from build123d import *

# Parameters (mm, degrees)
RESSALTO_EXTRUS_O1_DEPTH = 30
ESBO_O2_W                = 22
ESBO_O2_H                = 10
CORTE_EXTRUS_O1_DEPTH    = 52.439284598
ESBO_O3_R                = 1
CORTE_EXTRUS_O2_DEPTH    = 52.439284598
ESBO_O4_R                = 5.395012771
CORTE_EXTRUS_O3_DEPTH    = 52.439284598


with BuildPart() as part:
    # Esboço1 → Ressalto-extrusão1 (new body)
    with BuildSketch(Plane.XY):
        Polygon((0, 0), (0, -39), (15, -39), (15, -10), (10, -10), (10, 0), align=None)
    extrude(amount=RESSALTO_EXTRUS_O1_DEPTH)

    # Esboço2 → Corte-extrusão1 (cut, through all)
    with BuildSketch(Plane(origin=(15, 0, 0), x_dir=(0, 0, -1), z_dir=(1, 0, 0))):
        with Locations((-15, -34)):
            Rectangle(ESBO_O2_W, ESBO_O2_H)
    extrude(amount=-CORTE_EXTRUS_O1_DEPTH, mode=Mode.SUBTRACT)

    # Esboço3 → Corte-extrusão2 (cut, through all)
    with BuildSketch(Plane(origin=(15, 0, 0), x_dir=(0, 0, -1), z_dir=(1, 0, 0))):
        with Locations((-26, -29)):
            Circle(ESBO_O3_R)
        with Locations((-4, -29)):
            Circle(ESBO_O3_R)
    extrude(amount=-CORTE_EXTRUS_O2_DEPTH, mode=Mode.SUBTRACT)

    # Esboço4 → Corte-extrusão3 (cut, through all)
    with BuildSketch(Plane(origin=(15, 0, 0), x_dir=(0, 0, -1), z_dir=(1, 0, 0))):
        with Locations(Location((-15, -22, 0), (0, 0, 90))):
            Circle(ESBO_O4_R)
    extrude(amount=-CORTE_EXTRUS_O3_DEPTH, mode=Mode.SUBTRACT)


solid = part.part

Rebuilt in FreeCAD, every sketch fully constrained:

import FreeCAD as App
import Part
import Sketcher
from FreeCAD import Vector


def add_polygon(sketch, points):
    """Adds a closed chain of lines whose ends are joined by coincident constraints."""
    first, n = sketch.GeometryCount, len(points)
    for a, b in zip(points, points[1:] + points[:1]):
        sketch.addGeometry(Part.LineSegment(App.Vector(*a, 0), App.Vector(*b, 0)), False)
    for i in range(n):
        sketch.addConstraint(Sketcher.Constraint("Coincident", first + i, 2, first + (i + 1) % n, 1))

doc = App.newDocument("Part")
params = doc.addObject("Spreadsheet::Sheet", "Params")
for row, (alias, value) in enumerate([
    ("sketch1_width", "15 mm"),
    ("sketch1_width2", "5 mm"),
    ("sketch1_height", "39 mm"),
    ("pad1_length", "30 mm"),
    ("sketch2_width", "10 mm"),
    ("sketch2_height", "22 mm"),
    ("sketch3_diameter", "2 mm"),
], start=1):
    params.set(f"A{row}", alias)
    params.set(f"B{row}", "=" + value)
    params.setAlias(f"B{row}", alias)

body = doc.addObject("PartDesign::Body", "Body")

sketch1 = body.newObject("Sketcher::SketchObject", "Sketch")
sketch1.AttachmentSupport = (doc.getObject("XY_Plane"), [""])
sketch1.MapMode = "FlatFace"
add_polygon(sketch1, [(0, 0), (0, -39), (15, -39), (15, -10), (10, -10), (10, 0)])
sketch1.addConstraint(Sketcher.Constraint("Vertical", 0))
sketch1.addConstraint(Sketcher.Constraint("Horizontal", 1))
sketch1.addConstraint(Sketcher.Constraint("Vertical", 2))
sketch1.addConstraint(Sketcher.Constraint("Horizontal", 3))
sketch1.addConstraint(Sketcher.Constraint("Vertical", 4))
sketch1.addConstraint(Sketcher.Constraint("Horizontal", 5))
sketch1.addConstraint(Sketcher.Constraint("Coincident", 5, 2, -1, 1))
sketch1.addConstraint(Sketcher.Constraint("Equal", 5, 4))
sketch1.addConstraint(Sketcher.Constraint("DistanceX", 1, 1, 1, 2, 15.0))
sketch1.addConstraint(Sketcher.Constraint("DistanceX", 3, 2, 3, 1, 5.0))
sketch1.addConstraint(Sketcher.Constraint("DistanceY", 0, 2, 0, 1, 39.0))
sketch1.setExpression("Constraints[14]", "Params.sketch1_width")
sketch1.setExpression("Constraints[15]", "Params.sketch1_width2")
sketch1.setExpression("Constraints[16]", "Params.sketch1_height")
pad1 = body.newObject("PartDesign::Pad", "Pad")
pad1.Profile = sketch1
pad1.setExpression("Length", "Params.pad1_length")

sketch2 = body.newObject("Sketcher::SketchObject", "Sketch001")
sketch2.AttachmentSupport = (doc.getObject("YZ_Plane"), [""])
sketch2.MapMode = "FlatFace"
sketch2.AttachmentOffset = App.Placement(Vector(0, 0, 15), App.Rotation())
add_polygon(sketch2, [(-29, 26), (-39, 26), (-39, 4), (-29, 4)])
sketch2.addConstraint(Sketcher.Constraint("Horizontal", 0))
sketch2.addConstraint(Sketcher.Constraint("Vertical", 1))
sketch2.addConstraint(Sketcher.Constraint("Horizontal", 2))
sketch2.addConstraint(Sketcher.Constraint("Vertical", 3))
sketch2.addConstraint(Sketcher.Constraint("DistanceX", 0, 2, 0, 1, 10.0))
sketch2.addConstraint(Sketcher.Constraint("DistanceY", 1, 2, 1, 1, 22.0))
sketch2.addConstraint(Sketcher.Constraint("DistanceX", 0, 2, -1, 1, 39.0))
sketch2.addConstraint(Sketcher.Constraint("DistanceY", -1, 1, 0, 2, 26.0))
sketch2.setExpression("Constraints[8]", "Params.sketch2_width")
sketch2.setExpression("Constraints[9]", "Params.sketch2_height")
pocket1 = body.newObject("PartDesign::Pocket", "Pocket")
pocket1.Profile = sketch2
pocket1.Type = "ThroughAll"

sketch3 = body.newObject("Sketcher::SketchObject", "Sketch002")
sketch3.AttachmentSupport = (doc.getObject("YZ_Plane"), [""])
sketch3.MapMode = "FlatFace"
sketch3.AttachmentOffset = App.Placement(Vector(0, 0, 15), App.Rotation())
sketch3.addGeometry(Part.Circle(Vector(-29, 26, 0), Vector(0, 0, 1), 1), False)
sketch3.addGeometry(Part.Circle(Vector(-29, 4, 0), Vector(0, 0, 1), 1), False)
sketch3.addConstraint(Sketcher.Constraint("Equal", 0, 1))
sketch3.addConstraint(Sketcher.Constraint("Vertical", 0, 3, 1, 3))
sketch3.addConstraint(Sketcher.Constraint("Diameter", 0, 2.0))
sketch3.addConstraint(Sketcher.Constraint("DistanceX", 0, 3, -1, 1, 29.0))
sketch3.addConstraint(Sketcher.Constraint("DistanceY", -1, 1, 0, 3, 26.0))
sketch3.addConstraint(Sketcher.Constraint("DistanceY", -1, 1, 1, 3, 4.0))
sketch3.setExpression("Constraints[2]", "Params.sketch3_diameter")
pocket2 = body.newObject("PartDesign::Pocket", "Pocket001")
pocket2.Profile = sketch3
pocket2.Type = "ThroughAll"

sketch4 = body.newObject("Sketcher::SketchObject", "Sketch003")
sketch4.AttachmentSupport = (doc.getObject("YZ_Plane"), [""])
sketch4.MapMode = "FlatFace"
sketch4.AttachmentOffset = App.Placement(Vector(0, 0, 15), App.Rotation())
sketch4.addGeometry(Part.Circle(Vector(-22, 15, 0), Vector(0, 0, 1), 5), False)
sketch4.addConstraint(Sketcher.Constraint("DistanceX", 0, 3, -1, 1, 22.0))
sketch4.addConstraint(Sketcher.Constraint("DistanceY", -1, 1, 0, 3, 15.0))
sketch4.addConstraint(Sketcher.Constraint("Diameter", 0, 10.790026))
pocket3 = body.newObject("PartDesign::Pocket", "Pocket002")
pocket3.Profile = sketch4
pocket3.Type = "ThroughAll"

doc.recompute()
